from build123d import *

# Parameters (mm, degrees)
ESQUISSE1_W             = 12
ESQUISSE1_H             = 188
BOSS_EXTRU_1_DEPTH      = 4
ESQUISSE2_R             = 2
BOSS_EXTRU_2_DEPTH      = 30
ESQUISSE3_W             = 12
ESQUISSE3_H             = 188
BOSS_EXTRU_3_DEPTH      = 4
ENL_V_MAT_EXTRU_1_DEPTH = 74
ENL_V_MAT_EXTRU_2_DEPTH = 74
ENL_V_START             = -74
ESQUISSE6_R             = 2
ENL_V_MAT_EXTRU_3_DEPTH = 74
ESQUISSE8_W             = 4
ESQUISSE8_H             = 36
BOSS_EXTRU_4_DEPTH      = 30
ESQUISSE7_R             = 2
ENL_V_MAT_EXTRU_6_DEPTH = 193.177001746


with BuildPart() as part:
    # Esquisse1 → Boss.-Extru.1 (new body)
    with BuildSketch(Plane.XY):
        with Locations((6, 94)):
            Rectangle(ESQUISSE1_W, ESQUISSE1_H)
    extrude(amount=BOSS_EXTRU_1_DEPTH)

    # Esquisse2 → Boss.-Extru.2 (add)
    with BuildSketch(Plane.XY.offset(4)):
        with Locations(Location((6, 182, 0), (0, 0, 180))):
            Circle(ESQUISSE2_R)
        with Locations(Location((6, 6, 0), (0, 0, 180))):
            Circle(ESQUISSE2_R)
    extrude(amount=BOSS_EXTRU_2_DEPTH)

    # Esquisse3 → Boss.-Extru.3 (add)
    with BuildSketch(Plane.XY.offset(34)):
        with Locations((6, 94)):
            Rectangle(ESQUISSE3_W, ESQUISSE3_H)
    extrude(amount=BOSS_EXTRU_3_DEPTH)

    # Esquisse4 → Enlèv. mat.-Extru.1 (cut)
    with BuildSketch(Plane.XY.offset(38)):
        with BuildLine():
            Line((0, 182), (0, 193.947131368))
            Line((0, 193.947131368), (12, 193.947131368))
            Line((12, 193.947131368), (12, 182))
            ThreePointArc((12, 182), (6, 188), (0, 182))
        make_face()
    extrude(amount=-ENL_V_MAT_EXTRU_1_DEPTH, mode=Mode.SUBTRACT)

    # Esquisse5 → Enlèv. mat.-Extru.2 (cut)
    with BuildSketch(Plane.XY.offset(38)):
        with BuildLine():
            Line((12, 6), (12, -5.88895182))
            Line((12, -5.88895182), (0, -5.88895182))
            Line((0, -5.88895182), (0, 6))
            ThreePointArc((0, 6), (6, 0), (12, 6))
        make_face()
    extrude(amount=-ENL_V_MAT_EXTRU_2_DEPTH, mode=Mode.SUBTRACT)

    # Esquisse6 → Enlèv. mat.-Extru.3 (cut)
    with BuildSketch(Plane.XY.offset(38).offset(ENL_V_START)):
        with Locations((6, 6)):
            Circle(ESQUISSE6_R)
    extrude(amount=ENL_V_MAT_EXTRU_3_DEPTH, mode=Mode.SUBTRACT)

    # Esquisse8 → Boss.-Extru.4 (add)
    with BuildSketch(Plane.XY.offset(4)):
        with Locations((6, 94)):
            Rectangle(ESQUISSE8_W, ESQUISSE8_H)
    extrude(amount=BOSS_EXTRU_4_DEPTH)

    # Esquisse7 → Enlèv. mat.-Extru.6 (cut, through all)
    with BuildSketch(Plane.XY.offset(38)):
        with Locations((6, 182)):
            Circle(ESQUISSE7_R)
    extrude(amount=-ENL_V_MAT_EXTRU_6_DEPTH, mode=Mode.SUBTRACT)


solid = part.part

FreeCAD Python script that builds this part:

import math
import FreeCAD as App
import Part
import Sketcher
from FreeCAD import Vector
Q = App.Units.Quantity


def add_polygon(sketch, points):
    """Adds a closed chain of lines whose ends are joined by coincident constraints."""
    first, n = sketch.GeometryCount, len(points)
    for a, b in zip(points, points[1:] + points[:1]):
        sketch.addGeometry(Part.LineSegment(App.Vector(*a, 0), App.Vector(*b, 0)), False)
    for i in range(n):
        sketch.addConstraint(Sketcher.Constraint("Coincident", first + i, 2, first + (i + 1) % n, 1))

doc = App.newDocument("Part")
body = doc.addObject("PartDesign::Body", "Body")

# Sketch on XY plane
sketch1 = body.newObject("Sketcher::SketchObject", "Sketch")
sketch1.AttachmentSupport = (doc.getObject("XY_Plane"), [""])
sketch1.MapMode = "FlatFace"
add_polygon(sketch1, [(0, 188), (0, 0), (12, 0), (12, 188)])  # lines 0-3
sketch1.addConstraint([
    Sketcher.Constraint("Vertical", 0),
    Sketcher.Constraint("Horizontal", 1),
    Sketcher.Constraint("Vertical", 2),
    Sketcher.Constraint("Horizontal", 3),
    Sketcher.Constraint("Coincident", 0, 2, -1, 1),
    Sketcher.Constraint("DistanceX", 1, 1, 1, 2, Q("12 mm")),
    Sketcher.Constraint("DistanceY", 0, 2, 0, 1, Q("188 mm")),
])
pad1 = body.newObject("PartDesign::Pad", "Pad")
pad1.Profile = sketch1
pad1.Length = 4

# Sketch on XY plane
sketch2 = body.newObject("Sketcher::SketchObject", "Sketch001")
sketch2.AttachmentSupport = (doc.getObject("XY_Plane"), [""])
sketch2.MapMode = "FlatFace"
sketch2.AttachmentOffset = App.Placement(Vector(0, 0, 4), App.Rotation())
sketch2.addGeometry([
    Part.Circle(Vector(6, 182, 0), Vector(0, 0, 1), 2),
    Part.Circle(Vector(6, 6, 0), Vector(0, 0, 1), 2),
], False)
sketch2.addConstraint([
    Sketcher.Constraint("Equal", 0, 1),
    Sketcher.Constraint("Vertical", 0, 3, 1, 3),
    Sketcher.Constraint("Diameter", 0, Q("4 mm")),
    Sketcher.Constraint("DistanceX", -1, 1, 0, 3, Q("6 mm")),
    Sketcher.Constraint("DistanceY", -1, 1, 0, 3, Q("182 mm")),
    Sketcher.Constraint("DistanceY", -1, 1, 1, 3, Q("6 mm")),
])
pad2 = body.newObject("PartDesign::Pad", "Pad001")
pad2.Profile = sketch2
pad2.Length = 30

# Sketch on XY plane
sketch3 = body.newObject("Sketcher::SketchObject", "Sketch002")
sketch3.AttachmentSupport = (doc.getObject("XY_Plane"), [""])
sketch3.MapMode = "FlatFace"
sketch3.AttachmentOffset = App.Placement(Vector(0, 0, 34), App.Rotation())
add_polygon(sketch3, [(0, 188), (0, 0), (12, 0), (12, 188)])  # lines 0-3
sketch3.addConstraint([
    Sketcher.Constraint("Vertical", 0),
    Sketcher.Constraint("Horizontal", 1),
    Sketcher.Constraint("Vertical", 2),
    Sketcher.Constraint("Horizontal", 3),
    Sketcher.Constraint("Coincident", 0, 2, -1, 1),
    Sketcher.Constraint("DistanceX", 1, 1, 1, 2, Q("12 mm")),
    Sketcher.Constraint("DistanceY", 0, 2, 0, 1, Q("188 mm")),
])
pad3 = body.newObject("PartDesign::Pad", "Pad002")
pad3.Profile = sketch3
pad3.Length = 4

# Sketch on XY plane
sketch4 = body.newObject("Sketcher::SketchObject", "Sketch003")
sketch4.AttachmentSupport = (doc.getObject("XY_Plane"), [""])
sketch4.MapMode = "FlatFace"
sketch4.AttachmentOffset = App.Placement(Vector(0, 0, 38), App.Rotation())
sketch4.addGeometry([
    Part.LineSegment(Vector(0, 194, 0), Vector(0, 182, 0)),
    Part.ArcOfCircle(Part.Circle(Vector(6, 182, 0), Vector(0, 0, 1), 6), math.radians(0), math.radians(180)),
    Part.LineSegment(Vector(12, 182, 0), Vector(12, 194, 0)),
    Part.LineSegment(Vector(12, 194, 0), Vector(0, 194, 0)),
], False)
sketch4.addConstraint([
    Sketcher.Constraint("Tangent", 0, 2, 1, 2),
    Sketcher.Constraint("Tangent", 1, 1, 2, 1),
    Sketcher.Constraint("Coincident", 2, 2, 3, 1),
    Sketcher.Constraint("Coincident", 3, 2, 0, 1),
    Sketcher.Constraint("Vertical", 0),
    Sketcher.Constraint("Vertical", 2),
    Sketcher.Constraint("Horizontal", 3),
    Sketcher.Constraint("PointOnObject", 0, 2, -2),
    Sketcher.Constraint("Radius", 1, Q("6 mm")),
    Sketcher.Constraint("DistanceY", -1, 1, 1, 3, Q("182 mm")),
    Sketcher.Constraint("DistanceY", 0, 2, 0, 1, Q("11.947131 mm")),
])
pocket1 = body.newObject("PartDesign::Pocket", "Pocket")
pocket1.Profile = sketch4
pocket1.Length = 74

# Sketch on XY plane
sketch5 = body.newObject("Sketcher::SketchObject", "Sketch004")
sketch5.AttachmentSupport = (doc.getObject("XY_Plane"), [""])
sketch5.MapMode = "FlatFace"
sketch5.AttachmentOffset = App.Placement(Vector(0, 0, 38), App.Rotation())
sketch5.addGeometry([
    Part.LineSegment(Vector(12, -6, 0), Vector(12, 6, 0)),
    Part.ArcOfCircle(Part.Circle(Vector(6, 6, 0), Vector(0, 0, 1), 6), math.radians(180), math.radians(360)),
    Part.LineSegment(Vector(0, 6, 0), Vector(0, -6, 0)),
    Part.LineSegment(Vector(0, -6, 0), Vector(12, -6, 0)),
], False)
sketch5.addConstraint([
    Sketcher.Constraint("Tangent", 0, 2, 1, 2),
    Sketcher.Constraint("Tangent", 1, 1, 2, 1),
    Sketcher.Constraint("Coincident", 2, 2, 3, 1),
    Sketcher.Constraint("Coincident", 3, 2, 0, 1),
    Sketcher.Constraint("Vertical", 0),
    Sketcher.Constraint("Vertical", 2),
    Sketcher.Constraint("Horizontal", 3),
    Sketcher.Constraint("PointOnObject", 1, 1, -2),
    Sketcher.Constraint("Radius", 1, Q("6 mm")),
    Sketcher.Constraint("DistanceY", -1, 1, 1, 3, Q("6 mm")),
    Sketcher.Constraint("DistanceY", 0, 1, 0, 2, Q("11.888952 mm")),
])
pocket2 = body.newObject("PartDesign::Pocket", "Pocket001")
pocket2.Profile = sketch5
pocket2.Length = 74

# Sketch on XY plane
sketch6 = body.newObject("Sketcher::SketchObject", "Sketch005")
sketch6.AttachmentSupport = (doc.getObject("XY_Plane"), [""])
sketch6.MapMode = "FlatFace"
sketch6.AttachmentOffset = App.Placement(Vector(0, 0, -36), App.Rotation())
sketch6.addGeometry(Part.Circle(Vector(6, 6, 0), Vector(0, 0, 1), 2), False)
sketch6.addConstraint([
    Sketcher.Constraint("Diameter", 0, Q("4 mm")),
    Sketcher.Constraint("DistanceX", -1, 1, 0, 3, Q("6 mm")),
    Sketcher.Constraint("DistanceY", -1, 1, 0, 3, Q("6 mm")),
])
pocket3 = body.newObject("PartDesign::Pocket", "Pocket002")
pocket3.Profile = sketch6
pocket3.Length = 74
pocket3.Reversed = True

# Sketch on XY plane
sketch7 = body.newObject("Sketcher::SketchObject", "Sketch006")
sketch7.AttachmentSupport = (doc.getObject("XY_Plane"), [""])
sketch7.MapMode = "FlatFace"
sketch7.AttachmentOffset = App.Placement(Vector(0, 0, 4), App.Rotation())
add_polygon(sketch7, [(4, 112), (4, 76), (8, 76), (8, 112)])  # lines 0-3
sketch7.addConstraint([
    Sketcher.Constraint("Vertical", 0),
    Sketcher.Constraint("Horizontal", 1),
    Sketcher.Constraint("Vertical", 2),
    Sketcher.Constraint("Horizontal", 3),
    Sketcher.Constraint("DistanceX", 1, 1, 1, 2, Q("4 mm")),
    Sketcher.Constraint("DistanceY", 0, 2, 0, 1, Q("36 mm")),
    Sketcher.Constraint("DistanceX", -1, 1, 0, 2, Q("4 mm")),
    Sketcher.Constraint("DistanceY", -1, 1, 0, 2, Q("76 mm")),
])
pad4 = body.newObject("PartDesign::Pad", "Pad003")
pad4.Profile = sketch7
pad4.Length = 30

# Sketch on XY plane
sketch8 = body.newObject("Sketcher::SketchObject", "Sketch007")
sketch8.AttachmentSupport = (doc.getObject("XY_Plane"), [""])
sketch8.MapMode = "FlatFace"
sketch8.AttachmentOffset = App.Placement(Vector(0, 0, 38), App.Rotation())
sketch8.addGeometry(Part.Circle(Vector(6, 182, 0), Vector(0, 0, 1), 2), False)
sketch8.addConstraint([
    Sketcher.Constraint("Diameter", 0, Q("4 mm")),
    Sketcher.Constraint("DistanceX", -1, 1, 0, 3, Q("6 mm")),
    Sketcher.Constraint("DistanceY", -1, 1, 0, 3, Q("182 mm")),
])
pocket4 = body.newObject("PartDesign::Pocket", "Pocket003")
pocket4.Profile = sketch8
pocket4.Type = "ThroughAll"

doc.recompute()
